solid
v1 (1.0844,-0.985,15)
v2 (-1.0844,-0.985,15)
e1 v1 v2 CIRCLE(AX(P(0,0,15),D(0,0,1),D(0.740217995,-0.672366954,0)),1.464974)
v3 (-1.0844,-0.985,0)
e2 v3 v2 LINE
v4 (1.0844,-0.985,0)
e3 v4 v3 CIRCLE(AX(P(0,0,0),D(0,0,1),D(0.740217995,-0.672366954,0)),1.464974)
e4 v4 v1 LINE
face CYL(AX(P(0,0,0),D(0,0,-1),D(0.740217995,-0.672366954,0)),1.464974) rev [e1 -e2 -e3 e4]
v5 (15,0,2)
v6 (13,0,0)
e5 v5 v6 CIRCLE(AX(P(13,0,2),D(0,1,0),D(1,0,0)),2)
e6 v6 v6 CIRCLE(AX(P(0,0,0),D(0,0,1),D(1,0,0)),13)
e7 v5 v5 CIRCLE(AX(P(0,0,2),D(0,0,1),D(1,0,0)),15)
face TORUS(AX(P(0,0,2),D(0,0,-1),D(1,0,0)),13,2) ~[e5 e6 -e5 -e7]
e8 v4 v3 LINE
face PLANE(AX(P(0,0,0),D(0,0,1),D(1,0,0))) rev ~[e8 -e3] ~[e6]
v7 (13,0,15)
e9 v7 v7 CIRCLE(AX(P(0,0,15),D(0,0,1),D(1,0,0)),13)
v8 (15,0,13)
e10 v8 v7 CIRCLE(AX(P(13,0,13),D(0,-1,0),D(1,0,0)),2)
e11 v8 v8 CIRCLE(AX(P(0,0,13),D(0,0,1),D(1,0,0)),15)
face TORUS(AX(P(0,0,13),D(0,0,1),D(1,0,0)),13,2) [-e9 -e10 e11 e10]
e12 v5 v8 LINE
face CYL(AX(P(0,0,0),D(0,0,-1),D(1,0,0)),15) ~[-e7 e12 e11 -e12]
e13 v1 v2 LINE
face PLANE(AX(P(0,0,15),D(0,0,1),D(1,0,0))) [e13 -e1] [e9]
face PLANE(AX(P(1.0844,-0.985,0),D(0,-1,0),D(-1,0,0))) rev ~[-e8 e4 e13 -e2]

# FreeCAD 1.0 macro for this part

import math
import FreeCAD as App
import Part
import Sketcher
Q = App.Units.Quantity


def edges_at(feature, points):
    """Names of the edges that pass closest to the given points."""
    edges = feature.Shape.Edges
    near = lambda p: min(range(len(edges)), key=lambda i: edges[i].distToShape(Part.Vertex(*p))[0])
    return sorted({f"Edge{near(p) + 1}" for p in points})

doc = App.newDocument("Part")
params = doc.addObject("Spreadsheet::Sheet", "Params")
for row, (alias, value) in enumerate([
    ("sketch1_diameter", "30 mm"),
    ("pad1_length", "15 mm"),
    ("fillet_radius", "2 mm"),
], start=1):
    params.set(f"A{row}", alias)
    params.set(f"B{row}", "=" + value)
    params.setAlias(f"B{row}", alias)

body = doc.addObject("PartDesign::Body", "Body")

# Sketch on XY plane
sketch1 = body.newObject("Sketcher::SketchObject", "Sketch")
sketch1.AttachmentSupport = (doc.getObject("XY_Plane"), [""])
sketch1.MapMode = "FlatFace"
sketch1.addGeometry([
    Part.Circle(App.Vector(0, 0, 0), App.Vector(0, 0, 1), 15),
    Part.ArcOfCircle(Part.Circle(App.Vector(0, 0, 0), App.Vector(0, 0, 1), 1.5), math.radians(-42), math.radians(222)),
    Part.LineSegment(App.Vector(1.1, -1, 0), App.Vector(-1.1, -1, 0)),
], False)
sketch1.addConstraint([
    Sketcher.Constraint("Coincident", 1, 1, 2, 1),
    Sketcher.Constraint("Coincident", 2, 2, 1, 2),
    Sketcher.Constraint("Horizontal", 2),
    Sketcher.Constraint("Coincident", 0, 3, -1, 1),
    Sketcher.Constraint("Coincident", 1, 3, -1, 1),
    Sketcher.Constraint("Diameter", 0, Q("30 mm")),
    Sketcher.Constraint("Radius", 1, Q("1.465 mm")),
    Sketcher.Constraint("DistanceX", 2, 2, 2, 1, Q("2.1688 mm")),
])
sketch1.setExpression("Constraints[5]", "Params.sketch1_diameter")
pad1 = body.newObject("PartDesign::Pad", "Pad")
pad1.Profile = sketch1
pad1.setExpression("Length", "Params.pad1_length")
doc.recompute()

fillet = body.newObject("PartDesign::Fillet", "Fillet")
fillet.Base = (pad1, edges_at(pad1, [(-15, 0, 15), (-15, 0, 0)]))
fillet.setExpression("Radius", "Params.fillet_radius")

doc.recompute()
